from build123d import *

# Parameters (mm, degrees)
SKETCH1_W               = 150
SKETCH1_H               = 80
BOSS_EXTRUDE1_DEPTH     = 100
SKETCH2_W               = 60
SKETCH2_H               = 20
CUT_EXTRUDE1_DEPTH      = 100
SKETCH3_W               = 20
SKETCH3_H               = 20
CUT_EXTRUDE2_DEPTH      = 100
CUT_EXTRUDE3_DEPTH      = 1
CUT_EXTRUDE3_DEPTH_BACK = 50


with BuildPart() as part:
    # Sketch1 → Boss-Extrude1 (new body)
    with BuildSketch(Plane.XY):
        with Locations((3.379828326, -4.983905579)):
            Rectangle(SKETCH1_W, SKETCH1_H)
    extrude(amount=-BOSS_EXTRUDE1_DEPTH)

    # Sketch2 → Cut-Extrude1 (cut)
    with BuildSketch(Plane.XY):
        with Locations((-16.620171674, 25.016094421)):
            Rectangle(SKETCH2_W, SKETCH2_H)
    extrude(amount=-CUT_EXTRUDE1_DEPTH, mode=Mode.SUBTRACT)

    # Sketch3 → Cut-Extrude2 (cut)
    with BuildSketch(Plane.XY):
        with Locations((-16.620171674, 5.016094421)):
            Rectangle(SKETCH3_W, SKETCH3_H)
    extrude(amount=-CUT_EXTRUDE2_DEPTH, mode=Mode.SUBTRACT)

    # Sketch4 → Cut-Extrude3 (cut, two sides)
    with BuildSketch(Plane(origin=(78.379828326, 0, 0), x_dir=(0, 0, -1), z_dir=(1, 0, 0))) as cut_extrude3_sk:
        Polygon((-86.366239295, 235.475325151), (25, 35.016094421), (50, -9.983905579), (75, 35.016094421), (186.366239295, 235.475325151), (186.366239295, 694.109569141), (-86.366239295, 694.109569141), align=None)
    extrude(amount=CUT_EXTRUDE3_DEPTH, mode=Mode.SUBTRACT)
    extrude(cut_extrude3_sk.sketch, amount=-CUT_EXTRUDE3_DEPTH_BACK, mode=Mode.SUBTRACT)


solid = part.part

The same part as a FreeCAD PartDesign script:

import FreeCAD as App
import Part
import Sketcher
from FreeCAD import Vector
Q = App.Units.Quantity

doc = App.newDocument("Part")
params = doc.addObject("Spreadsheet::Sheet", "Params")
for row, (alias, value) in enumerate([
    ("sketch1_width", "150 mm"),
    ("sketch1_height", "80 mm"),
    ("pad1_length", "100 mm"),
    ("sketch2_width", "60 mm"),
    ("sketch2_height", "20 mm"),
    ("pocket1_length", "100 mm"),
    ("sketch3_width", "20 mm"),
    ("pocket2_length", "100 mm"),
    ("pocket3_length", "1 mm"),
    ("pocket3_length2", "50 mm"),
], start=1):
    params.set(f"A{row}", alias)
    params.set(f"B{row}", "=" + value)
    params.setAlias(f"B{row}", alias)

body = doc.addObject("PartDesign::Body", "Body")

# Sketch on XY plane
sketch1 = body.newObject("Sketcher::SketchObject", "Sketch")
sketch1.AttachmentSupport = (doc.getObject("XY_Plane"), [""])
sketch1.MapMode = "FlatFace"
sketch1.addGeometry([
    Part.LineSegment(Vector(-72, 35, 0), Vector(-72, -45, 0)),
    Part.LineSegment(Vector(-72, -45, 0), Vector(78, -45, 0)),
    Part.LineSegment(Vector(78, -45, 0), Vector(78, 35, 0)),
    Part.LineSegment(Vector(78, 35, 0), Vector(-72, 35, 0)),
], False)
sketch1.addConstraint([
    Sketcher.Constraint("Coincident", 0, 2, 1, 1),
    Sketcher.Constraint("Coincident", 1, 2, 2, 1),
    Sketcher.Constraint("Coincident", 2, 2, 3, 1),
    Sketcher.Constraint("Coincident", 3, 2, 0, 1),
    Sketcher.Constraint("Vertical", 0),
    Sketcher.Constraint("Horizontal", 1),
    Sketcher.Constraint("Vertical", 2),
    Sketcher.Constraint("Horizontal", 3),
    Sketcher.Constraint("DistanceX", 1, 1, 1, 2, Q("150 mm")),
    Sketcher.Constraint("DistanceY", 0, 2, 0, 1, Q("80 mm")),
    Sketcher.Constraint("DistanceX", 0, 2, -1, 1, Q("71.620172 mm")),
    Sketcher.Constraint("DistanceY", 0, 2, -1, 1, Q("44.983906 mm")),
])
sketch1.setExpression("Constraints[8]", "Params.sketch1_width")
sketch1.setExpression("Constraints[9]", "Params.sketch1_height")
pad1 = body.newObject("PartDesign::Pad", "Pad")
pad1.Profile = sketch1
pad1.setExpression("Length", "Params.pad1_length")
pad1.Reversed = True

# Sketch on XY plane
sketch2 = body.newObject("Sketcher::SketchObject", "Sketch001")
sketch2.AttachmentSupport = (doc.getObject("XY_Plane"), [""])
sketch2.MapMode = "FlatFace"
sketch2.addGeometry([
    Part.LineSegment(Vector(-47, 35, 0), Vector(-47, 15, 0)),
    Part.LineSegment(Vector(-47, 15, 0), Vector(13, 15, 0)),
    Part.LineSegment(Vector(13, 15, 0), Vector(13, 35, 0)),
    Part.LineSegment(Vector(13, 35, 0), Vector(-47, 35, 0)),
], False)
sketch2.addConstraint([
    Sketcher.Constraint("Coincident", 0, 2, 1, 1),
    Sketcher.Constraint("Coincident", 1, 2, 2, 1),
    Sketcher.Constraint("Coincident", 2, 2, 3, 1),
    Sketcher.Constraint("Coincident", 3, 2, 0, 1),
    Sketcher.Constraint("Vertical", 0),
    Sketcher.Constraint("Horizontal", 1),
    Sketcher.Constraint("Vertical", 2),
    Sketcher.Constraint("Horizontal", 3),
    Sketcher.Constraint("DistanceX", 1, 1, 1, 2, Q("60 mm")),
    Sketcher.Constraint("DistanceY", 0, 2, 0, 1, Q("20 mm")),
    Sketcher.Constraint("DistanceX", 0, 2, -1, 1, Q("46.620172 mm")),
    Sketcher.Constraint("DistanceY", -1, 1, 0, 2, Q("15.016094 mm")),
])
sketch2.setExpression("Constraints[8]", "Params.sketch2_width")
sketch2.setExpression("Constraints[9]", "Params.sketch2_height")
pocket1 = body.newObject("PartDesign::Pocket", "Pocket")
pocket1.Profile = sketch2
pocket1.setExpression("Length", "Params.pocket1_length")

# Sketch on XY plane
sketch3 = body.newObject("Sketcher::SketchObject", "Sketch002")
sketch3.AttachmentSupport = (doc.getObject("XY_Plane"), [""])
sketch3.MapMode = "FlatFace"
sketch3.addGeometry([
    Part.LineSegment(Vector(-27, 15, 0), Vector(-27, -5, 0)),
    Part.LineSegment(Vector(-27, -5, 0), Vector(-7, -5, 0)),
    Part.LineSegment(Vector(-7, -5, 0), Vector(-7, 15, 0)),
    Part.LineSegment(Vector(-7, 15, 0), Vector(-27, 15, 0)),
], False)
sketch3.addConstraint([
    Sketcher.Constraint("Coincident", 0, 2, 1, 1),
    Sketcher.Constraint("Coincident", 1, 2, 2, 1),
    Sketcher.Constraint("Coincident", 2, 2, 3, 1),
    Sketcher.Constraint("Coincident", 3, 2, 0, 1),
    Sketcher.Constraint("Vertical", 0),
    Sketcher.Constraint("Horizontal", 1),
    Sketcher.Constraint("Vertical", 2),
    Sketcher.Constraint("Horizontal", 3),
    Sketcher.Constraint("Equal", 3, 0),
    Sketcher.Constraint("DistanceX", 1, 1, 1, 2, Q("20 mm")),
    Sketcher.Constraint("DistanceX", 0, 2, -1, 1, Q("26.620172 mm")),
    Sketcher.Constraint("DistanceY", 0, 2, -1, 1, Q("4.983906 mm")),
])
sketch3.setExpression("Constraints[9]", "Params.sketch3_width")
pocket2 = body.newObject("PartDesign::Pocket", "Pocket001")
pocket2.Profile = sketch3
pocket2.setExpression("Length", "Params.pocket2_length")

# Sketch on YZ plane
sketch4 = body.newObject("Sketcher::SketchObject", "Sketch003")
sketch4.AttachmentSupport = (doc.getObject("YZ_Plane"), [""])
sketch4.MapMode = "FlatFace"
sketch4.AttachmentOffset = App.Placement(Vector(0, 0, 78.379828), App.Rotation())
sketch4.addGeometry([
    Part.LineSegment(Vector(235, 86, 0), Vector(35, -25, 0)),  # 0
    Part.LineSegment(Vector(35, -25, 0), Vector(-10, -50, 0)),  # 1
    Part.LineSegment(Vector(-10, -50, 0), Vector(35, -75, 0)),  # 2
    Part.LineSegment(Vector(35, -75, 0), Vector(235, -186, 0)),  # 3
    Part.LineSegment(Vector(235, -186, 0), Vector(694, -186, 0)),  # 4
    Part.LineSegment(Vector(694, -186, 0), Vector(694, 86, 0)),  # 5
    Part.LineSegment(Vector(694, 86, 0), Vector(235, 86, 0)),  # 6
], False)
sketch4.addConstraint([
    Sketcher.Constraint("Coincident", 0, 2, 1, 1),
    Sketcher.Constraint("Coincident", 1, 2, 2, 1),
    Sketcher.Constraint("Coincident", 2, 2, 3, 1),
    Sketcher.Constraint("Coincident", 3, 2, 4, 1),
    Sketcher.Constraint("Coincident", 4, 2, 5, 1),
    Sketcher.Constraint("Coincident", 5, 2, 6, 1),
    Sketcher.Constraint("Coincident", 6, 2, 0, 1),
    Sketcher.Constraint("Horizontal", 4),
    Sketcher.Constraint("Vertical", 5),
    Sketcher.Constraint("Horizontal", 6),
    Sketcher.Constraint("Parallel", 0, 1),
    Sketcher.Constraint("Parallel", 2, 3),
    Sketcher.Constraint("Vertical", 0, 2, 2, 2),
    Sketcher.Constraint("Vertical", 3, 2, 6, 2),
    Sketcher.Constraint("Equal", 1, 2),
    Sketcher.Constraint("DistanceY", 0, 2, -1, 1, Q("25 mm")),
    Sketcher.Constraint("DistanceY", 1, 2, -1, 1, Q("50 mm")),
    Sketcher.Constraint("DistanceX", 1, 2, 0, 2, Q("45 mm")),
    Sketcher.Constraint("DistanceY", 5, 1, 5, 2, Q("272.732479 mm")),
    Sketcher.Constraint("DistanceX", 4, 1, 4, 2, Q("458.634244 mm")),
    Sketcher.Constraint("DistanceX", -1, 1, 4, 2, Q("694.109569 mm")),
])
pocket3 = body.newObject("PartDesign::Pocket", "Pocket002")
pocket3.Profile = sketch4
pocket3.Type = "TwoLengths"
pocket3.setExpression("Length", "Params.pocket3_length")
pocket3.setExpression("Length2", "Params.pocket3_length2")
pocket3.Reversed = True

doc.recompute()
